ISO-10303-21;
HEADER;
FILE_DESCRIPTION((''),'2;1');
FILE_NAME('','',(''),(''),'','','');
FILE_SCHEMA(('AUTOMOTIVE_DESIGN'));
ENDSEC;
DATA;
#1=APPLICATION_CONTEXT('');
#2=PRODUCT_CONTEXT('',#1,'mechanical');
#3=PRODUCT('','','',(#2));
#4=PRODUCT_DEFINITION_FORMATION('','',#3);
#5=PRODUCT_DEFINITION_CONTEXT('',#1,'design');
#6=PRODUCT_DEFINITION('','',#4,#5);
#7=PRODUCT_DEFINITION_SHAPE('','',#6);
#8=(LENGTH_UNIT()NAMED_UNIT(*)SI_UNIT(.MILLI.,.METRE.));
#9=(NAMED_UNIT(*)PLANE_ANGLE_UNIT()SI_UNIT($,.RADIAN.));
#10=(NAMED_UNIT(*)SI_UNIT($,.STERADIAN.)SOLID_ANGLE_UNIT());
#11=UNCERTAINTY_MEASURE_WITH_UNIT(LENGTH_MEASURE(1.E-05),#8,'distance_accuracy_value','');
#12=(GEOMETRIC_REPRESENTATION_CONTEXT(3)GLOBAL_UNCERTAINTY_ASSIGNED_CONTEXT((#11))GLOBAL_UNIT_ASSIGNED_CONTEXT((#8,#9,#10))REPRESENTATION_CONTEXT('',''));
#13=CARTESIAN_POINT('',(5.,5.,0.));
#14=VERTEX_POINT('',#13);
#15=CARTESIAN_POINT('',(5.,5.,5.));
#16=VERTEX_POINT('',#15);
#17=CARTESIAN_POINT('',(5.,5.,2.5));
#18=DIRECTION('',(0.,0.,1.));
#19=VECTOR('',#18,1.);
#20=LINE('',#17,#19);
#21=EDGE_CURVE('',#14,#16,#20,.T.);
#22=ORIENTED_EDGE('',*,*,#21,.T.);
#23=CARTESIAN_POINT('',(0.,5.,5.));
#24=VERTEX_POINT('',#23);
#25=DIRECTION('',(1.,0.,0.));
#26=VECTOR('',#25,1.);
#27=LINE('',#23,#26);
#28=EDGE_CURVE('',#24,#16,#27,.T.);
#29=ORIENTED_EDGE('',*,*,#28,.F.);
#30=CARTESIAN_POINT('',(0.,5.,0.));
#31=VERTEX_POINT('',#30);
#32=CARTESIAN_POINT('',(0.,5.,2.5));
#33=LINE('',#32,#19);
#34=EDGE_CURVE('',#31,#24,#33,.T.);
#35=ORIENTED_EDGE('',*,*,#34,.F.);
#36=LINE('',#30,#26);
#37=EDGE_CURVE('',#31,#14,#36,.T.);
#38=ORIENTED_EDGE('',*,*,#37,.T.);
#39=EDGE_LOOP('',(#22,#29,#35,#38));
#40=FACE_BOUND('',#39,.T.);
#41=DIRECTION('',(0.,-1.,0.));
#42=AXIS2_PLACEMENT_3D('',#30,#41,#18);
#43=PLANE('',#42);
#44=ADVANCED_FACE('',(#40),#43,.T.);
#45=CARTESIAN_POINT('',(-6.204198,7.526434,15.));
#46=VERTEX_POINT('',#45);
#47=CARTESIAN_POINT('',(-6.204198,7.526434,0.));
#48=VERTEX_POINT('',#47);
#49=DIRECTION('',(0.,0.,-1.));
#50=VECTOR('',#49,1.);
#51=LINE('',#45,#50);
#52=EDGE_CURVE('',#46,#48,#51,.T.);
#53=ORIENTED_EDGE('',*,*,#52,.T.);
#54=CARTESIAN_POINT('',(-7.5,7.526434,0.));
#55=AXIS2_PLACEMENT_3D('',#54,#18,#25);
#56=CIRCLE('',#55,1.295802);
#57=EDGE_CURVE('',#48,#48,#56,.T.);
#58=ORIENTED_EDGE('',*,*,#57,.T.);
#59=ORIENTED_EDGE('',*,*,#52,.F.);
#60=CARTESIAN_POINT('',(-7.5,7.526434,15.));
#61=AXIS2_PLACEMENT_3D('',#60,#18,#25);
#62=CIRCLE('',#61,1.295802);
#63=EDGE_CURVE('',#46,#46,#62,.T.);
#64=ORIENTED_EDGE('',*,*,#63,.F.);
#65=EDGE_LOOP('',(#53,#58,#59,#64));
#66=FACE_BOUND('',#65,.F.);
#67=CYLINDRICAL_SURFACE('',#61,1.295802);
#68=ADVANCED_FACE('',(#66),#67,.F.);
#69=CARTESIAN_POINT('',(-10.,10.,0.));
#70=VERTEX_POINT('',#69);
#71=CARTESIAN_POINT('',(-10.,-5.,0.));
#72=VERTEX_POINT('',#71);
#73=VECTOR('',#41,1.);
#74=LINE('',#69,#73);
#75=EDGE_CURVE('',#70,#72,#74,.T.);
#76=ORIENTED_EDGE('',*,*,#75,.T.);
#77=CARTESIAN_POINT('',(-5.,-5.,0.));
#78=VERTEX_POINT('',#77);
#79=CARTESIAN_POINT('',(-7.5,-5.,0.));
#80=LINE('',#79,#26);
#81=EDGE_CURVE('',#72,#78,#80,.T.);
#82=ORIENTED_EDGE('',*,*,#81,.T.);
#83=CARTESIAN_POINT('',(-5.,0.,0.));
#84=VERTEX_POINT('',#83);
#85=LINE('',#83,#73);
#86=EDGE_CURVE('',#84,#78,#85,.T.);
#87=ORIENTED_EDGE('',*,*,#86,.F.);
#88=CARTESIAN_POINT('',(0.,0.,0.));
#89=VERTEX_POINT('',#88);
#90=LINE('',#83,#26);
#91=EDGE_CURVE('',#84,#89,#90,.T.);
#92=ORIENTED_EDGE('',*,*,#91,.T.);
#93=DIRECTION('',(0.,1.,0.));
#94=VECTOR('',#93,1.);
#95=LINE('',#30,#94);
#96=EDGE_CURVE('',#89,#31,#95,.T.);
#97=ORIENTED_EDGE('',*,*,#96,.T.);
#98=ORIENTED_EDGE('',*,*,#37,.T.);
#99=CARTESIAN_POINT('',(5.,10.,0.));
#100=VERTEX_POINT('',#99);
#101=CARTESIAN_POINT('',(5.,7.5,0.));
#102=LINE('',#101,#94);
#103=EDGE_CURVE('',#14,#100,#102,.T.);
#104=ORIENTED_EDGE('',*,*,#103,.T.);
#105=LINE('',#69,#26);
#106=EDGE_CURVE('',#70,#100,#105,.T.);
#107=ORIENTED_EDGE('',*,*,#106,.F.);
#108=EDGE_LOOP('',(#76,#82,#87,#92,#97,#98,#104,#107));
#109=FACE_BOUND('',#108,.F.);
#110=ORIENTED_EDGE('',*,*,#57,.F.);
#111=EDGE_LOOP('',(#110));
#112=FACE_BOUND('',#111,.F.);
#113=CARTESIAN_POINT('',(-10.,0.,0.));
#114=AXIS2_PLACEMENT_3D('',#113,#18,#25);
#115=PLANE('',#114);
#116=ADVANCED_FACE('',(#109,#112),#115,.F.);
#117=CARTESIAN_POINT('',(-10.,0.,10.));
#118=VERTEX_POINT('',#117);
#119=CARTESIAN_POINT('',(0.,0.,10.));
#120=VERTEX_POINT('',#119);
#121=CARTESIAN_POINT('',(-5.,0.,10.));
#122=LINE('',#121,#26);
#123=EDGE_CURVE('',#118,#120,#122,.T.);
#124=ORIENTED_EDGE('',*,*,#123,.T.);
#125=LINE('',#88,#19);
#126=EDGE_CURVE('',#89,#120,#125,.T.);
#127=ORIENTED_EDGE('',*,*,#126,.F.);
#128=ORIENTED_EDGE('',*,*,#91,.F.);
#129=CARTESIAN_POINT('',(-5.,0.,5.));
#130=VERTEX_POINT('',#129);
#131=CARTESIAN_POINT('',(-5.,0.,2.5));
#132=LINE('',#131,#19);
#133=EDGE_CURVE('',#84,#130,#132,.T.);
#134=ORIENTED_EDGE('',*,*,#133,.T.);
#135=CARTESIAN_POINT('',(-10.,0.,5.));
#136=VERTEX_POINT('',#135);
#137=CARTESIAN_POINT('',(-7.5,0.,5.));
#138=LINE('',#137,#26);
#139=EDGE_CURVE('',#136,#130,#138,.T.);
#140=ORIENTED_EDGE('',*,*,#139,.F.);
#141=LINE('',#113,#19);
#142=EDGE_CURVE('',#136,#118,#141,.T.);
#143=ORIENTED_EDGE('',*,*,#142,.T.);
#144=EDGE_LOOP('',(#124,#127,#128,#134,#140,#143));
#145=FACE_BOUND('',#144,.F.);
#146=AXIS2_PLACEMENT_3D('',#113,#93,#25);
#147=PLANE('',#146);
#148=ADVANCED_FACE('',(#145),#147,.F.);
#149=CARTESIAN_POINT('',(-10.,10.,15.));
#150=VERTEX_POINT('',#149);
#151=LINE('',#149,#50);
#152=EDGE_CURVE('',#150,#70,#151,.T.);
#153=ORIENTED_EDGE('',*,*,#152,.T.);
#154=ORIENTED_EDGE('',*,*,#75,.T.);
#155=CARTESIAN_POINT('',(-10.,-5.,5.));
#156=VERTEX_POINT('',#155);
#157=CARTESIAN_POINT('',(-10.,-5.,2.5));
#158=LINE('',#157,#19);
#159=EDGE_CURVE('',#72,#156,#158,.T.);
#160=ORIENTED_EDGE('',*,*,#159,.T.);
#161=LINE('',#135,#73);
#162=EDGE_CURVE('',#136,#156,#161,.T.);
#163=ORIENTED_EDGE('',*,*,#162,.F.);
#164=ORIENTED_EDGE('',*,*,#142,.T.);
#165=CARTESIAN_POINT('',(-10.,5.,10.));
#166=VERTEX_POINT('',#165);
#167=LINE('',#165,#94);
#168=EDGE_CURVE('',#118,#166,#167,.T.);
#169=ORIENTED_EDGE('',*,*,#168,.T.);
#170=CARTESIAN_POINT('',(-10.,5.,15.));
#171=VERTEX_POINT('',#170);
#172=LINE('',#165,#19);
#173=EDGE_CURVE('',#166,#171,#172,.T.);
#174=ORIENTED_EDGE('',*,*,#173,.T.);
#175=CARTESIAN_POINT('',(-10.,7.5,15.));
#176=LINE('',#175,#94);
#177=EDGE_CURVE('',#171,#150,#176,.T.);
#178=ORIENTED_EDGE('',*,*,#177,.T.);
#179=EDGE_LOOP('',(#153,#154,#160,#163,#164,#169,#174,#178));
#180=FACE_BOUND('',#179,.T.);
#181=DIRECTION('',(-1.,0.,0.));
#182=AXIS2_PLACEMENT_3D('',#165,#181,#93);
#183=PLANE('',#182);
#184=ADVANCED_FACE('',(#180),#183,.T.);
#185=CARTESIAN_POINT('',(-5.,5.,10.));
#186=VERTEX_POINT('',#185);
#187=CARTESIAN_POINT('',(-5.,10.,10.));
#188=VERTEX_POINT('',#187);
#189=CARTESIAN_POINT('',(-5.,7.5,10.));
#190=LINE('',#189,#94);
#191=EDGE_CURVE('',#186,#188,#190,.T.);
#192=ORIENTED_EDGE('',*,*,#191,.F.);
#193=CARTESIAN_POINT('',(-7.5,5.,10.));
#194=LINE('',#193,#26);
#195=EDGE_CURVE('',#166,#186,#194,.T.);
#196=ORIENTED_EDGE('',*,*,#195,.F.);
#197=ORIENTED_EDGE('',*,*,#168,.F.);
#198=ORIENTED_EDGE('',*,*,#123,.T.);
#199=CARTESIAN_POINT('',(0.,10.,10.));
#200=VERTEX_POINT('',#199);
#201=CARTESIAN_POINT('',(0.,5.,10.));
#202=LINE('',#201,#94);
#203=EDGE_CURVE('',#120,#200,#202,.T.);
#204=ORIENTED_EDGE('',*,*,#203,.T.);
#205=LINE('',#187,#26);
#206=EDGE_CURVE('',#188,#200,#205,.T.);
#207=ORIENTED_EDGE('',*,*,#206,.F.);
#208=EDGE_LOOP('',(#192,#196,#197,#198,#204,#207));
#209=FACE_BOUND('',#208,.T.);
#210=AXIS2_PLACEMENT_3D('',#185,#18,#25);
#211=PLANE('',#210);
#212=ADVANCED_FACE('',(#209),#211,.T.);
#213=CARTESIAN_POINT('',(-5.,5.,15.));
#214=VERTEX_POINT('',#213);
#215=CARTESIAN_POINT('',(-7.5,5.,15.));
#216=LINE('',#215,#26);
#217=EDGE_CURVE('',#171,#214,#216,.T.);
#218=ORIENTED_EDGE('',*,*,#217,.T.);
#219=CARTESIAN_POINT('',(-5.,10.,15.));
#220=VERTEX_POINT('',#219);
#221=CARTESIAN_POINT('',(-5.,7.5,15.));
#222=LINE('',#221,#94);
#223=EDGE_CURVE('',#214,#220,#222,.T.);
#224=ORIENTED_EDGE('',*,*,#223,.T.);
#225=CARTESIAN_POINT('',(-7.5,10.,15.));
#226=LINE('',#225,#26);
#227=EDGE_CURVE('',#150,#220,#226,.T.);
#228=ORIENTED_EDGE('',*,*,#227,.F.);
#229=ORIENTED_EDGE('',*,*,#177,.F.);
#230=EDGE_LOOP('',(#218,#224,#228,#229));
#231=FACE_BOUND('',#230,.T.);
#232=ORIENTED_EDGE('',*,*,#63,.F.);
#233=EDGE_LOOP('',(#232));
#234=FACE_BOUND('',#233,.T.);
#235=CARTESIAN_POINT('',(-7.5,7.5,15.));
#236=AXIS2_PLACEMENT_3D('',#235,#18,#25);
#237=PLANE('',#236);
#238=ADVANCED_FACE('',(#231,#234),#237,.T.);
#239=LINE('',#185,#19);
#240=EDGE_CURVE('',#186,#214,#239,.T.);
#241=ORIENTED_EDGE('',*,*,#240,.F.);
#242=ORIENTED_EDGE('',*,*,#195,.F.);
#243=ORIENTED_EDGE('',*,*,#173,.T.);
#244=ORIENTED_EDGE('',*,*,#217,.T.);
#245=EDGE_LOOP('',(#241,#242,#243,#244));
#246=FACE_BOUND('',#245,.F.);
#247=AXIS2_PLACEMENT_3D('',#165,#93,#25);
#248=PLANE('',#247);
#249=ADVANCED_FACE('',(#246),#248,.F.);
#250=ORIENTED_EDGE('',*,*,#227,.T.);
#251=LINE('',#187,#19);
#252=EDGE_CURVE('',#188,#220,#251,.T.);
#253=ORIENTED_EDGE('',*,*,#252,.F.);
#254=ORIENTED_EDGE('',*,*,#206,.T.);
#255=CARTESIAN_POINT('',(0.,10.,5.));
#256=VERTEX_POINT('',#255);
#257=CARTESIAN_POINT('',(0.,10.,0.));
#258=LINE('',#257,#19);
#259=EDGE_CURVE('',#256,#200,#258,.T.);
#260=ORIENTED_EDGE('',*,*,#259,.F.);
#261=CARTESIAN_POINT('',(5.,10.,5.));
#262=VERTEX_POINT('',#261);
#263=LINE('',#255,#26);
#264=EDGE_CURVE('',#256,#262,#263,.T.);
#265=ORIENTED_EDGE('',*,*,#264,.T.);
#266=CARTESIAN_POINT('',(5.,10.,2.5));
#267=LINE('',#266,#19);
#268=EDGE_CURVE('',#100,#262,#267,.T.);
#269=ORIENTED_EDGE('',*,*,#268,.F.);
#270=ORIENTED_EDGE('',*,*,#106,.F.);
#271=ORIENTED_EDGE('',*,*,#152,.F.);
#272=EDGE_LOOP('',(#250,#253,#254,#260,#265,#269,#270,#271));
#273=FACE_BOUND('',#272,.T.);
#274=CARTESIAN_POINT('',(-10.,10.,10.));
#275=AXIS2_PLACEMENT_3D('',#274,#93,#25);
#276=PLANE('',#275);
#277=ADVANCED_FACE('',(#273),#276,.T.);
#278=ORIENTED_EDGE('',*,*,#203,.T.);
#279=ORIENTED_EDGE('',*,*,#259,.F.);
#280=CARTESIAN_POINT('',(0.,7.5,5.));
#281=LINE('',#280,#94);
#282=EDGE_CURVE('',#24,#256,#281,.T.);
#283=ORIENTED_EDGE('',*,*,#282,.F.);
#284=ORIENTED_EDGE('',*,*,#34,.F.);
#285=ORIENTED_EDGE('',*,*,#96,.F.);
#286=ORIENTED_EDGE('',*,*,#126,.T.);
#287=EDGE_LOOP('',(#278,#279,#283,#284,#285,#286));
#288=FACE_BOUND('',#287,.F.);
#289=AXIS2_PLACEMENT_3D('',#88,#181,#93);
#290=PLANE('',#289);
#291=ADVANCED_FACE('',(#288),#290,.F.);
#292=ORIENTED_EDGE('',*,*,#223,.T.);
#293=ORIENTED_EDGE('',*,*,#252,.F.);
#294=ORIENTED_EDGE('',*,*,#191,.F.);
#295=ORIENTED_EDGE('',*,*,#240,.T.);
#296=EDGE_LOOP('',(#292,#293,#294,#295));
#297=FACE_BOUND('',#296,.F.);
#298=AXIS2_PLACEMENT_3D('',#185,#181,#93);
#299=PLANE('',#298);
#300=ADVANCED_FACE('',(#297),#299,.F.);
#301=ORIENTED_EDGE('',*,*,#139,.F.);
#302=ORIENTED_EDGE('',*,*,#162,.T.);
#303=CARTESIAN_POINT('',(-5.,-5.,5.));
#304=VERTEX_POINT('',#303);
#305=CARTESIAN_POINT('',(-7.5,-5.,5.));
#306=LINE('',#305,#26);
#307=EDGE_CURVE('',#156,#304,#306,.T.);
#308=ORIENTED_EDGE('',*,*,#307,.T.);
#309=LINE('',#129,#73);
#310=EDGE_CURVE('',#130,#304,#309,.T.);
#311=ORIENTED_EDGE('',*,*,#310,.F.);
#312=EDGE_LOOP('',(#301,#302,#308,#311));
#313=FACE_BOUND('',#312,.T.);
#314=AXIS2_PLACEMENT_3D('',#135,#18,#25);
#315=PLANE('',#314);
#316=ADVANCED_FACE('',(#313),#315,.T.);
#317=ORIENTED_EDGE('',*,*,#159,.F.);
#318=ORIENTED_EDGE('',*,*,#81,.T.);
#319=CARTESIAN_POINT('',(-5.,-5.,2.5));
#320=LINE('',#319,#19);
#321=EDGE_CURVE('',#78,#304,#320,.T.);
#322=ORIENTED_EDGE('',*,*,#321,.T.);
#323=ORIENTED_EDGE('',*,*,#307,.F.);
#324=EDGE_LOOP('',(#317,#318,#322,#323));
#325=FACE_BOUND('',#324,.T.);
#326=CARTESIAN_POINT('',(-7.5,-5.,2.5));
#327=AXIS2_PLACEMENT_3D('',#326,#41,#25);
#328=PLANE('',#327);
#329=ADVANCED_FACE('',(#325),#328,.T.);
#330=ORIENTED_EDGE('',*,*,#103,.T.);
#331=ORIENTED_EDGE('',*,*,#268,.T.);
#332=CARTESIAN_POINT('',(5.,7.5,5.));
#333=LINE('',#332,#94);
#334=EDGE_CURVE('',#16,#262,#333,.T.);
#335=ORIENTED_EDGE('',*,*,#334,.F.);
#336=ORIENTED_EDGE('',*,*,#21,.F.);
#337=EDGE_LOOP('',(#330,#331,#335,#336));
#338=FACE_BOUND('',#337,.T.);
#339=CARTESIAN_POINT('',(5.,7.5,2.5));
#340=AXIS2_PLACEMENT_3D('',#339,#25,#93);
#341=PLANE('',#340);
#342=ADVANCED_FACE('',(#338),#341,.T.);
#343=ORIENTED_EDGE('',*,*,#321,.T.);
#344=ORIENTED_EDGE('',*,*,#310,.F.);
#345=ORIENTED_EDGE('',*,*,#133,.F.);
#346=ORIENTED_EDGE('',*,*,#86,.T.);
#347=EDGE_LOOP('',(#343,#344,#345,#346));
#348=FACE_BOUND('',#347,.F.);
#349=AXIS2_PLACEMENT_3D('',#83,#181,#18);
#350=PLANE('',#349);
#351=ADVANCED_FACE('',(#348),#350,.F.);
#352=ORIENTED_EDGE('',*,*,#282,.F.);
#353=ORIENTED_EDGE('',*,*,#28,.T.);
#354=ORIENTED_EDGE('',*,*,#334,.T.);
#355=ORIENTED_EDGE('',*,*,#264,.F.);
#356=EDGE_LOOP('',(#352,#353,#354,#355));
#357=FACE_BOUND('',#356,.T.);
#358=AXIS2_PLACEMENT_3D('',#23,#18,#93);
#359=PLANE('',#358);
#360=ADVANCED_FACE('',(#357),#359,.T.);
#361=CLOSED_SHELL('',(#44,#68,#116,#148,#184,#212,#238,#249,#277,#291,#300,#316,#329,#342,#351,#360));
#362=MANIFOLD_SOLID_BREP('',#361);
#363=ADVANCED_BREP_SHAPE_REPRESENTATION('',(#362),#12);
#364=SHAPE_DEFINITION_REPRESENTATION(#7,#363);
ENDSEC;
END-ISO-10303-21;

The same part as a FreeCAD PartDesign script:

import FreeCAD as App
import Part
import Sketcher

V = App.Vector


def add_polygon(sketch, points):
    """Adds a closed chain of lines whose ends are joined by coincident constraints."""
    first, n = sketch.GeometryCount, len(points)
    for a, b in zip(points, points[1:] + points[:1]):
        sketch.addGeometry(Part.LineSegment(App.Vector(*a, 0), App.Vector(*b, 0)), False)
    for i in range(n):
        sketch.addConstraint(Sketcher.Constraint("Coincident", first + i, 2, first + (i + 1) % n, 1))

doc = App.newDocument("Part")
body = doc.addObject("PartDesign::Body", "Body")

sketch1 = body.newObject("Sketcher::SketchObject", "Sketch")
sketch1.AttachmentSupport = (doc.getObject("XY_Plane"), [""])
sketch1.MapMode = "FlatFace"
add_polygon(sketch1, [(-10, 10), (-10, 0), (0, 0), (0, 10)])
sketch1.addConstraint([
    Sketcher.Constraint("Vertical", 0),
    Sketcher.Constraint("Horizontal", 1),
    Sketcher.Constraint("Vertical", 2),
    Sketcher.Constraint("Horizontal", 3),
    Sketcher.Constraint("Coincident", 1, 2, -1, 1),
    Sketcher.Constraint("Equal", 3, 0),
    Sketcher.Constraint("DistanceX", 1, 1, 1, 2, 10.0),
])
pad1 = body.newObject("PartDesign::Pad", "Pad")
pad1.Profile = sketch1
pad1.Length = 10

sketch2 = body.newObject("Sketcher::SketchObject", "Sketch001")
sketch2.AttachmentSupport = (doc.getObject("YZ_Plane"), [""])
sketch2.MapMode = "FlatFace"
add_polygon(sketch2, [(5, 5), (5, 0), (10, 0), (10, 5)])
sketch2.addConstraint([
    Sketcher.Constraint("Vertical", 0),
    Sketcher.Constraint("Horizontal", 1),
    Sketcher.Constraint("Vertical", 2),
    Sketcher.Constraint("Horizontal", 3),
    Sketcher.Constraint("PointOnObject", 0, 2, -1),
    Sketcher.Constraint("Equal", 3, 0),
    Sketcher.Constraint("DistanceX", 1, 1, 1, 2, 5.0),
    Sketcher.Constraint("DistanceX", -1, 1, 0, 2, 5.0),
])
pad2 = body.newObject("PartDesign::Pad", "Pad001")
pad2.Profile = sketch2
pad2.Length = 5

sketch3 = body.newObject("Sketcher::SketchObject", "Sketch002")
sketch3.AttachmentSupport = (doc.getObject("XZ_Plane"), [""])
sketch3.MapMode = "FlatFace"
add_polygon(sketch3, [(-10, 5), (-10, 0), (-5, 0), (-5, 5)])
sketch3.addConstraint([
    Sketcher.Constraint("Vertical", 0),
    Sketcher.Constraint("Horizontal", 1),
    Sketcher.Constraint("Vertical", 2),
    Sketcher.Constraint("Horizontal", 3),
    Sketcher.Constraint("PointOnObject", 0, 2, -1),
    Sketcher.Constraint("Equal", 3, 0),
    Sketcher.Constraint("DistanceX", 1, 1, 1, 2, 5.0),
    Sketcher.Constraint("DistanceX", 0, 2, -1, 1, 10.0),
])
pad3 = body.newObject("PartDesign::Pad", "Pad002")
pad3.Profile = sketch3
pad3.Length = 5

sketch4 = body.newObject("Sketcher::SketchObject", "Sketch003")
sketch4.AttachmentSupport = (doc.getObject("XY_Plane"), [""])
sketch4.MapMode = "FlatFace"
sketch4.AttachmentOffset = App.Placement(V(0, 0, 10), App.Rotation())
add_polygon(sketch4, [(-10, 10), (-10, 5), (-5, 5), (-5, 10)])
sketch4.addConstraint([
    Sketcher.Constraint("Vertical", 0),
    Sketcher.Constraint("Horizontal", 1),
    Sketcher.Constraint("Vertical", 2),
    Sketcher.Constraint("Horizontal", 3),
    Sketcher.Constraint("Equal", 3, 0),
    Sketcher.Constraint("DistanceX", 1, 1, 1, 2, 5.0),
    Sketcher.Constraint("DistanceX", 0, 2, -1, 1, 10.0),
    Sketcher.Constraint("DistanceY", -1, 1, 0, 2, 5.0),
])
pad4 = body.newObject("PartDesign::Pad", "Pad003")
pad4.Profile = sketch4
pad4.Length = 5

sketch5 = body.newObject("Sketcher::SketchObject", "Sketch004")
sketch5.AttachmentSupport = (doc.getObject("XY_Plane"), [""])
sketch5.MapMode = "FlatFace"
sketch5.AttachmentOffset = App.Placement(V(0, 0, 15), App.Rotation())
sketch5.addGeometry(Part.Circle(V(-7.5, 7.526434, 0), V(0, 0, 1), 1.295802), False)
sketch5.addConstraint([
    Sketcher.Constraint("DistanceX", 0, 3, -1, 1, 7.5),
    Sketcher.Constraint("Diameter", 0, 2.591604),
    Sketcher.Constraint("DistanceY", -1, 1, 0, 3, 7.526434),
])
pocket1 = body.newObject("PartDesign::Pocket", "Pocket")
pocket1.Profile = sketch5
pocket1.Length = 25

doc.recompute()
